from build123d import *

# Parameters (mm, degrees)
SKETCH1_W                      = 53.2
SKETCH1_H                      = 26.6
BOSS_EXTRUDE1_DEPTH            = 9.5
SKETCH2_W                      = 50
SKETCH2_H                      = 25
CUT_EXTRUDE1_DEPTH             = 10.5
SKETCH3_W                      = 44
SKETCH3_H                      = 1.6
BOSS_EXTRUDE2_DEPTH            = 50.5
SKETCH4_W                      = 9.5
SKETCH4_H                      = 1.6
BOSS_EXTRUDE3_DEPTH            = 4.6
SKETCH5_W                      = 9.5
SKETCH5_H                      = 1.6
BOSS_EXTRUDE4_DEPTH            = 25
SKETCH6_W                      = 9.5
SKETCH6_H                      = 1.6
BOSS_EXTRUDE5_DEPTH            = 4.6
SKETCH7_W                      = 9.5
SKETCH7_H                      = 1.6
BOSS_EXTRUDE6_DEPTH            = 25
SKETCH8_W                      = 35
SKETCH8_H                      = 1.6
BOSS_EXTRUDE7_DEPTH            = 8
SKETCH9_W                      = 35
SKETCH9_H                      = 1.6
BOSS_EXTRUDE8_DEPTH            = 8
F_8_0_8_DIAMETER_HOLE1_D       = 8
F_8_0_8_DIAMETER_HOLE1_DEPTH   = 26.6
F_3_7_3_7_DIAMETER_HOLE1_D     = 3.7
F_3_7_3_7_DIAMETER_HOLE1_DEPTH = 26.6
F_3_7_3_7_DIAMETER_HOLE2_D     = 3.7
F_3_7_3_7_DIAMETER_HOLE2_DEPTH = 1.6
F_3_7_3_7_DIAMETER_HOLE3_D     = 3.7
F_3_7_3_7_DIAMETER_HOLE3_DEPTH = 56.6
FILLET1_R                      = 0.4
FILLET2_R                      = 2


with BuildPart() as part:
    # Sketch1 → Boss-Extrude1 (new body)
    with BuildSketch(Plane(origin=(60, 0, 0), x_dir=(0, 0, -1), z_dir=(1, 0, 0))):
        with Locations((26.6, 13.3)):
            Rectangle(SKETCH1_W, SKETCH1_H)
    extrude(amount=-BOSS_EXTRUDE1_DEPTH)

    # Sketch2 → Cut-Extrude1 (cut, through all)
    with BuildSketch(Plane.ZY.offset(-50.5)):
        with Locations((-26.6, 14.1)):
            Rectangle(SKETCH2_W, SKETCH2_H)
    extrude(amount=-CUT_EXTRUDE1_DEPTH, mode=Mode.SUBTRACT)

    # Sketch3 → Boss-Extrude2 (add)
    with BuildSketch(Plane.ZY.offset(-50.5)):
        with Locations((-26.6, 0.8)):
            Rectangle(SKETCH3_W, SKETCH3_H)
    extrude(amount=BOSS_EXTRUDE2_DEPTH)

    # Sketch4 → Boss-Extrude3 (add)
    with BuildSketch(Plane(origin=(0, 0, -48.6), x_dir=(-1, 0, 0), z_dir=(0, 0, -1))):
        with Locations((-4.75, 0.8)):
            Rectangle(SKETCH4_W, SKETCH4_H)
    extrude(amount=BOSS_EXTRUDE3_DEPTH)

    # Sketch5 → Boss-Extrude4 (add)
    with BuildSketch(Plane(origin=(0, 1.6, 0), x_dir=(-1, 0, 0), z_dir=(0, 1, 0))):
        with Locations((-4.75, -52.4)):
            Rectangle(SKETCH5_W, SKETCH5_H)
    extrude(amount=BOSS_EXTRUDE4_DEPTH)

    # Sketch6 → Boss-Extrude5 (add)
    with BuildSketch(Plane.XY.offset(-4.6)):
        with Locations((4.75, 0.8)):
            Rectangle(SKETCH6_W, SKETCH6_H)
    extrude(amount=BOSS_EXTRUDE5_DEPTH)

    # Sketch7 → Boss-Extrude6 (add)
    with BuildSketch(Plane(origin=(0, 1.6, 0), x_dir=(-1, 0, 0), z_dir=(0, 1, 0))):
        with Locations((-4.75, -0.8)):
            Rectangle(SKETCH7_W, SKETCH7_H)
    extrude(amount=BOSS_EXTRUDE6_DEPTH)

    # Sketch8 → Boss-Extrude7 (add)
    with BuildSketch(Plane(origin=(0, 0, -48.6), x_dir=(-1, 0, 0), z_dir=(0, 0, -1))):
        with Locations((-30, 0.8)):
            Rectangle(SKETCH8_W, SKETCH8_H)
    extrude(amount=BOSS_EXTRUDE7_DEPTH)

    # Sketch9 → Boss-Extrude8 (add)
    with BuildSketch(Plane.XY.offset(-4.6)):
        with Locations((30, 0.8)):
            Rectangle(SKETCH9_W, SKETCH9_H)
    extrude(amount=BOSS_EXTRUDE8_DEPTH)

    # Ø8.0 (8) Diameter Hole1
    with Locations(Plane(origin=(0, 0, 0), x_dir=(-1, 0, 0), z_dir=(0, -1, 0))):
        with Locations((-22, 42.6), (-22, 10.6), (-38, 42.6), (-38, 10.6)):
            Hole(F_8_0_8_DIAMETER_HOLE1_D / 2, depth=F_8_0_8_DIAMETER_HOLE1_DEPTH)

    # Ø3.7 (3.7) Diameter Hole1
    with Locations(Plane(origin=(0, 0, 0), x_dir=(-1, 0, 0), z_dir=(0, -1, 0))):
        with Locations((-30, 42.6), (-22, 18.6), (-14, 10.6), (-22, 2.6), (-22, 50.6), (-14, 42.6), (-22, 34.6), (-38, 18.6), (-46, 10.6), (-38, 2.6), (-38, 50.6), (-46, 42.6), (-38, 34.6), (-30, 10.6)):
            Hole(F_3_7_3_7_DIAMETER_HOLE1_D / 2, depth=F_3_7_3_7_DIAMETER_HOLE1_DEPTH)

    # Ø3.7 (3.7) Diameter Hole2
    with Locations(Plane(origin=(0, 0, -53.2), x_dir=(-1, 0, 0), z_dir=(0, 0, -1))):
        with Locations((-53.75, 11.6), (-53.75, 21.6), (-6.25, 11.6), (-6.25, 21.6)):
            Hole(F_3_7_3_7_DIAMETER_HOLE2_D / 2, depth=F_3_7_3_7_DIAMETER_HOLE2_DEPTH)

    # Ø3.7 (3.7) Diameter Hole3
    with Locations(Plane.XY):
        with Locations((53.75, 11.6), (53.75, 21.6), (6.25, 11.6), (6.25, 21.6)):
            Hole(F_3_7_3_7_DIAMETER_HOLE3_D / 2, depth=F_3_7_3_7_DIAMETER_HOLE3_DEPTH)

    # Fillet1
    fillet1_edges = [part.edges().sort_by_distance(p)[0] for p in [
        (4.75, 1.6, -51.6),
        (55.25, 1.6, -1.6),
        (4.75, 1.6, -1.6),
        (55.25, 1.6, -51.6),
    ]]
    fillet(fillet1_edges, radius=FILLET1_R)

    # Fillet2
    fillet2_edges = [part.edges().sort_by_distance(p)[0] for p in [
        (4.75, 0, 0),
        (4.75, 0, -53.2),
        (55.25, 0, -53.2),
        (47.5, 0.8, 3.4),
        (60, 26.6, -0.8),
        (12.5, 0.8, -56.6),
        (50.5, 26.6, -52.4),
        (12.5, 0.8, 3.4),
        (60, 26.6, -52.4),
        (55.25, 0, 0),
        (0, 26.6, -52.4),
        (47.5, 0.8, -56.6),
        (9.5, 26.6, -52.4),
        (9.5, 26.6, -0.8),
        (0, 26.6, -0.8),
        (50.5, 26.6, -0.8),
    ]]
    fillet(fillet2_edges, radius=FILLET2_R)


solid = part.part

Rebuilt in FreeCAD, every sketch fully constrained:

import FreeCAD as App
import Part
import Sketcher

V = App.Vector


def edges_at(feature, points):
    """Names of the edges that pass closest to the given points."""
    edges = feature.Shape.Edges
    near = lambda p: min(range(len(edges)), key=lambda i: edges[i].distToShape(Part.Vertex(*p))[0])
    return sorted({f"Edge{near(p) + 1}" for p in points})

doc = App.newDocument("Part")
params = doc.addObject("Spreadsheet::Sheet", "Params")
for row, (alias, value) in enumerate([
    ("sketch1_width", "26.6 mm"),
    ("sketch1_height", "53.2 mm"),
    ("pad1_length", "9.5 mm"),
    ("sketch2_width", "25 mm"),
    ("sketch2_height", "50 mm"),
    ("sketch3_height", "44 mm"),
    ("sketch3_width", "1.6 mm"),
    ("pad2_length", "50.5 mm"),
    ("sketch4_width", "9.5 mm"),
    ("sketch4_height", "1.6 mm"),
    ("pad3_length", "4.6 mm"),
    ("sketch5_width", "9.5 mm"),
    ("sketch5_height", "1.6 mm"),
    ("pad4_length", "25 mm"),
    ("sketch6_width", "9.5 mm"),
    ("sketch6_height", "1.6 mm"),
    ("pad5_length", "4.6 mm"),
    ("sketch7_width", "9.5 mm"),
    ("sketch7_height", "1.6 mm"),
    ("pad6_length", "25 mm"),
    ("sketch8_width", "35 mm"),
    ("sketch8_height", "1.6 mm"),
    ("pad7_length", "8 mm"),
    ("sketch9_width", "35 mm"),
    ("sketch9_height", "1.6 mm"),
    ("pad8_length", "8 mm"),
    ("sketch10_diameter", "8 mm"),
    ("hole_diameter", "8 mm"),
    ("hole_depth", "26.6 mm"),
    ("sketch11_diameter", "3.7 mm"),
    ("hole2_diameter", "3.7 mm"),
    ("hole2_depth", "26.6 mm"),
    ("sketch12_diameter", "3.7 mm"),
    ("hole3_diameter", "3.7 mm"),
    ("hole3_depth", "1.6 mm"),
    ("sketch13_diameter", "3.7 mm"),
    ("hole4_diameter", "3.7 mm"),
    ("hole4_depth", "56.6 mm"),
    ("fillet_radius", "0.4 mm"),
    ("fillet2_radius", "2 mm"),
], start=1):
    params.set(f"A{row}", alias)
    params.set(f"B{row}", "=" + value)
    params.setAlias(f"B{row}", alias)

body = doc.addObject("PartDesign::Body", "Body")

# Sketch on YZ plane
sketch1 = body.newObject("Sketcher::SketchObject", "Sketch")
sketch1.AttachmentSupport = (doc.getObject("YZ_Plane"), [""])
sketch1.MapMode = "FlatFace"
sketch1.AttachmentOffset = App.Placement(V(0, 0, 60), App.Rotation())
sketch1.addGeometry(Part.LineSegment(V(27, 0, 0), V(0, 0, 0)), False)
sketch1.addGeometry(Part.LineSegment(V(0, 0, 0), V(0, -53, 0)), False)
sketch1.addGeometry(Part.LineSegment(V(0, -53, 0), V(27, -53, 0)), False)
sketch1.addGeometry(Part.LineSegment(V(27, -53, 0), V(27, 0, 0)), False)
sketch1.addConstraint(Sketcher.Constraint("Coincident", 0, 2, 1, 1))
sketch1.addConstraint(Sketcher.Constraint("Coincident", 1, 2, 2, 1))
sketch1.addConstraint(Sketcher.Constraint("Coincident", 2, 2, 3, 1))
sketch1.addConstraint(Sketcher.Constraint("Coincident", 3, 2, 0, 1))
sketch1.addConstraint(Sketcher.Constraint("Horizontal", 0))
sketch1.addConstraint(Sketcher.Constraint("Vertical", 1))
sketch1.addConstraint(Sketcher.Constraint("Horizontal", 2))
sketch1.addConstraint(Sketcher.Constraint("Vertical", 3))
sketch1.addConstraint(Sketcher.Constraint("Coincident", 0, 2, -1, 1))
sketch1.addConstraint(Sketcher.Constraint("DistanceX", 0, 2, 0, 1, 26.6))
sketch1.addConstraint(Sketcher.Constraint("DistanceY", 1, 2, 1, 1, 53.2))
sketch1.setExpression("Constraints[9]", "Params.sketch1_width")
sketch1.setExpression("Constraints[10]", "Params.sketch1_height")
pad1 = body.newObject("PartDesign::Pad", "Pad")
pad1.Profile = sketch1
pad1.setExpression("Length", "Params.pad1_length")
pad1.Reversed = True

# Sketch on YZ plane
sketch2 = body.newObject("Sketcher::SketchObject", "Sketch001")
sketch2.AttachmentSupport = (doc.getObject("YZ_Plane"), [""])
sketch2.MapMode = "FlatFace"
sketch2.AttachmentOffset = App.Placement(V(0, 0, 50.5), App.Rotation())
sketch2.addGeometry(Part.LineSegment(V(27, -52, 0), V(2, -52, 0)), False)
sketch2.addGeometry(Part.LineSegment(V(2, -52, 0), V(2, -2, 0)), False)
sketch2.addGeometry(Part.LineSegment(V(2, -2, 0), V(27, -2, 0)), False)
sketch2.addGeometry(Part.LineSegment(V(27, -2, 0), V(27, -52, 0)), False)
sketch2.addConstraint(Sketcher.Constraint("Coincident", 0, 2, 1, 1))
sketch2.addConstraint(Sketcher.Constraint("Coincident", 1, 2, 2, 1))
sketch2.addConstraint(Sketcher.Constraint("Coincident", 2, 2, 3, 1))
sketch2.addConstraint(Sketcher.Constraint("Coincident", 3, 2, 0, 1))
sketch2.addConstraint(Sketcher.Constraint("Horizontal", 0))
sketch2.addConstraint(Sketcher.Constraint("Vertical", 1))
sketch2.addConstraint(Sketcher.Constraint("Horizontal", 2))
sketch2.addConstraint(Sketcher.Constraint("Vertical", 3))
sketch2.addConstraint(Sketcher.Constraint("DistanceX", 0, 2, 0, 1, 25.0))
sketch2.addConstraint(Sketcher.Constraint("DistanceY", 1, 1, 1, 2, 50.0))
sketch2.addConstraint(Sketcher.Constraint("DistanceX", -1, 1, 0, 2, 1.6))
sketch2.addConstraint(Sketcher.Constraint("DistanceY", 0, 2, -1, 1, 51.6))
sketch2.setExpression("Constraints[8]", "Params.sketch2_width")
sketch2.setExpression("Constraints[9]", "Params.sketch2_height")
pocket1 = body.newObject("PartDesign::Pocket", "Pocket")
pocket1.Profile = sketch2
pocket1.Type = "ThroughAll"
pocket1.Reversed = True

# Sketch on YZ plane
sketch3 = body.newObject("Sketcher::SketchObject", "Sketch002")
sketch3.AttachmentSupport = (doc.getObject("YZ_Plane"), [""])
sketch3.MapMode = "FlatFace"
sketch3.AttachmentOffset = App.Placement(V(0, 0, 50.5), App.Rotation())
sketch3.addGeometry(Part.LineSegment(V(1.6, -48.6, 0), V(0, -48.6, 0)), False)
sketch3.addGeometry(Part.LineSegment(V(0, -48.6, 0), V(0, -4.6, 0)), False)
sketch3.addGeometry(Part.LineSegment(V(0, -4.6, 0), V(1.6, -4.6, 0)), False)
sketch3.addGeometry(Part.LineSegment(V(1.6, -4.6, 0), V(1.6, -48.6, 0)), False)
sketch3.addConstraint(Sketcher.Constraint("Coincident", 0, 2, 1, 1))
sketch3.addConstraint(Sketcher.Constraint("Coincident", 1, 2, 2, 1))
sketch3.addConstraint(Sketcher.Constraint("Coincident", 2, 2, 3, 1))
sketch3.addConstraint(Sketcher.Constraint("Coincident", 3, 2, 0, 1))
sketch3.addConstraint(Sketcher.Constraint("Horizontal", 0))
sketch3.addConstraint(Sketcher.Constraint("Vertical", 1))
sketch3.addConstraint(Sketcher.Constraint("Horizontal", 2))
sketch3.addConstraint(Sketcher.Constraint("Vertical", 3))
sketch3.addConstraint(Sketcher.Constraint("PointOnObject", 0, 2, -2))
sketch3.addConstraint(Sketcher.Constraint("DistanceY", 1, 1, 1, 2, 44.0))
sketch3.addConstraint(Sketcher.Constraint("DistanceX", 0, 2, 0, 1, 1.6))
sketch3.addConstraint(Sketcher.Constraint("DistanceY", 0, 2, -1, 1, 48.6))
sketch3.setExpression("Constraints[9]", "Params.sketch3_height")
sketch3.setExpression("Constraints[10]", "Params.sketch3_width")
pad2 = body.newObject("PartDesign::Pad", "Pad001")
pad2.Profile = sketch3
pad2.setExpression("Length", "Params.pad2_length")
pad2.Reversed = True

# Sketch on XY plane
sketch4 = body.newObject("Sketcher::SketchObject", "Sketch003")
sketch4.AttachmentSupport = (doc.getObject("XY_Plane"), [""])
sketch4.MapMode = "FlatFace"
sketch4.AttachmentOffset = App.Placement(V(0, 0, -48.6), App.Rotation())
sketch4.addGeometry(Part.LineSegment(V(9.5, 1.6, 0), V(9.5, 0, 0)), False)
sketch4.addGeometry(Part.LineSegment(V(9.5, 0, 0), V(0, 0, 0)), False)
sketch4.addGeometry(Part.LineSegment(V(0, 0, 0), V(0, 1.6, 0)), False)
sketch4.addGeometry(Part.LineSegment(V(0, 1.6, 0), V(9.5, 1.6, 0)), False)
sketch4.addConstraint(Sketcher.Constraint("Coincident", 0, 2, 1, 1))
sketch4.addConstraint(Sketcher.Constraint("Coincident", 1, 2, 2, 1))
sketch4.addConstraint(Sketcher.Constraint("Coincident", 2, 2, 3, 1))
sketch4.addConstraint(Sketcher.Constraint("Coincident", 3, 2, 0, 1))
sketch4.addConstraint(Sketcher.Constraint("Vertical", 0))
sketch4.addConstraint(Sketcher.Constraint("Horizontal", 1))
sketch4.addConstraint(Sketcher.Constraint("Vertical", 2))
sketch4.addConstraint(Sketcher.Constraint("Horizontal", 3))
sketch4.addConstraint(Sketcher.Constraint("Coincident", 1, 2, -1, 1))
sketch4.addConstraint(Sketcher.Constraint("DistanceX", 1, 2, 1, 1, 9.5))
sketch4.addConstraint(Sketcher.Constraint("DistanceY", 0, 2, 0, 1, 1.6))
sketch4.setExpression("Constraints[9]", "Params.sketch4_width")
sketch4.setExpression("Constraints[10]", "Params.sketch4_height")
pad3 = body.newObject("PartDesign::Pad", "Pad002")
pad3.Profile = sketch4
pad3.setExpression("Length", "Params.pad3_length")
pad3.Reversed = True

# Sketch on XZ plane
sketch5 = body.newObject("Sketcher::SketchObject", "Sketch004")
sketch5.AttachmentSupport = (doc.getObject("XZ_Plane"), [""])
sketch5.MapMode = "FlatFace"
sketch5.AttachmentOffset = App.Placement(V(0, 0, -1.6), App.Rotation())
sketch5.addGeometry(Part.LineSegment(V(9.5, -51.6, 0), V(9.5, -53.2, 0)), False)
sketch5.addGeometry(Part.LineSegment(V(9.5, -53.2, 0), V(0, -53.2, 0)), False)
sketch5.addGeometry(Part.LineSegment(V(0, -53.2, 0), V(0, -51.6, 0)), False)
sketch5.addGeometry(Part.LineSegment(V(0, -51.6, 0), V(9.5, -51.6, 0)), False)
sketch5.addConstraint(Sketcher.Constraint("Coincident", 0, 2, 1, 1))
sketch5.addConstraint(Sketcher.Constraint("Coincident", 1, 2, 2, 1))
sketch5.addConstraint(Sketcher.Constraint("Coincident", 2, 2, 3, 1))
sketch5.addConstraint(Sketcher.Constraint("Coincident", 3, 2, 0, 1))
sketch5.addConstraint(Sketcher.Constraint("Vertical", 0))
sketch5.addConstraint(Sketcher.Constraint("Horizontal", 1))
sketch5.addConstraint(Sketcher.Constraint("Vertical", 2))
sketch5.addConstraint(Sketcher.Constraint("Horizontal", 3))
sketch5.addConstraint(Sketcher.Constraint("PointOnObject", 1, 2, -2))
sketch5.addConstraint(Sketcher.Constraint("DistanceX", 1, 2, 1, 1, 9.5))
sketch5.addConstraint(Sketcher.Constraint("DistanceY", 0, 2, 0, 1, 1.6))
sketch5.addConstraint(Sketcher.Constraint("DistanceY", 0, 2, -1, 1, 53.2))
sketch5.setExpression("Constraints[9]", "Params.sketch5_width")
sketch5.setExpression("Constraints[10]", "Params.sketch5_height")
pad4 = body.newObject("PartDesign::Pad", "Pad003")
pad4.Profile = sketch5
pad4.setExpression("Length", "Params.pad4_length")
pad4.Reversed = True

# Sketch on XY plane
sketch6 = body.newObject("Sketcher::SketchObject", "Sketch005")
sketch6.AttachmentSupport = (doc.getObject("XY_Plane"), [""])
sketch6.MapMode = "FlatFace"
sketch6.AttachmentOffset = App.Placement(V(0, 0, -4.6), App.Rotation())
sketch6.addGeometry(Part.LineSegment(V(0, 1.6, 0), V(0, 0, 0)), False)
sketch6.addGeometry(Part.LineSegment(V(0, 0, 0), V(9.5, 0, 0)), False)
sketch6.addGeometry(Part.LineSegment(V(9.5, 0, 0), V(9.5, 1.6, 0)), False)
sketch6.addGeometry(Part.LineSegment(V(9.5, 1.6, 0), V(0, 1.6, 0)), False)
sketch6.addConstraint(Sketcher.Constraint("Coincident", 0, 2, 1, 1))
sketch6.addConstraint(Sketcher.Constraint("Coincident", 1, 2, 2, 1))
sketch6.addConstraint(Sketcher.Constraint("Coincident", 2, 2, 3, 1))
sketch6.addConstraint(Sketcher.Constraint("Coincident", 3, 2, 0, 1))
sketch6.addConstraint(Sketcher.Constraint("Vertical", 0))
sketch6.addConstraint(Sketcher.Constraint("Horizontal", 1))
sketch6.addConstraint(Sketcher.Constraint("Vertical", 2))
sketch6.addConstraint(Sketcher.Constraint("Horizontal", 3))
sketch6.addConstraint(Sketcher.Constraint("Coincident", 0, 2, -1, 1))
sketch6.addConstraint(Sketcher.Constraint("DistanceX", 1, 1, 1, 2, 9.5))
sketch6.addConstraint(Sketcher.Constraint("DistanceY", 0, 2, 0, 1, 1.6))
sketch6.setExpression("Constraints[9]", "Params.sketch6_width")
sketch6.setExpression("Constraints[10]", "Params.sketch6_height")
pad5 = body.newObject("PartDesign::Pad", "Pad004")
pad5.Profile = sketch6
pad5.setExpression("Length", "Params.pad5_length")

# Sketch on XZ plane
sketch7 = body.newObject("Sketcher::SketchObject", "Sketch006")
sketch7.AttachmentSupport = (doc.getObject("XZ_Plane"), [""])
sketch7.MapMode = "FlatFace"
sketch7.AttachmentOffset = App.Placement(V(0, 0, -1.6), App.Rotation())
sketch7.addGeometry(Part.LineSegment(V(9.5, 0, 0), V(9.5, -1.6, 0)), False)
sketch7.addGeometry(Part.LineSegment(V(9.5, -1.6, 0), V(0, -1.6, 0)), False)
sketch7.addGeometry(Part.LineSegment(V(0, -1.6, 0), V(0, 0, 0)), False)
sketch7.addGeometry(Part.LineSegment(V(0, 0, 0), V(9.5, 0, 0)), False)
sketch7.addConstraint(Sketcher.Constraint("Coincident", 0, 2, 1, 1))
sketch7.addConstraint(Sketcher.Constraint("Coincident", 1, 2, 2, 1))
sketch7.addConstraint(Sketcher.Constraint("Coincident", 2, 2, 3, 1))
sketch7.addConstraint(Sketcher.Constraint("Coincident", 3, 2, 0, 1))
sketch7.addConstraint(Sketcher.Constraint("Vertical", 0))
sketch7.addConstraint(Sketcher.Constraint("Horizontal", 1))
sketch7.addConstraint(Sketcher.Constraint("Vertical", 2))
sketch7.addConstraint(Sketcher.Constraint("Horizontal", 3))
sketch7.addConstraint(Sketcher.Constraint("Coincident", 2, 2, -1, 1))
sketch7.addConstraint(Sketcher.Constraint("DistanceX", 1, 2, 1, 1, 9.5))
sketch7.addConstraint(Sketcher.Constraint("DistanceY", 0, 2, 0, 1, 1.6))
sketch7.setExpression("Constraints[9]", "Params.sketch7_width")
sketch7.setExpression("Constraints[10]", "Params.sketch7_height")
pad6 = body.newObject("PartDesign::Pad", "Pad005")
pad6.Profile = sketch7
pad6.setExpression("Length", "Params.pad6_length")
pad6.Reversed = True

# Sketch on XY plane
sketch8 = body.newObject("Sketcher::SketchObject", "Sketch007")
sketch8.AttachmentSupport = (doc.getObject("XY_Plane"), [""])
sketch8.MapMode = "FlatFace"
sketch8.AttachmentOffset = App.Placement(V(0, 0, -48.6), App.Rotation())
sketch8.addGeometry(Part.LineSegment(V(47.5, 1.6, 0), V(47.5, 0, 0)), False)
sketch8.addGeometry(Part.LineSegment(V(47.5, 0, 0), V(12.5, 0, 0)), False)
sketch8.addGeometry(Part.LineSegment(V(12.5, 0, 0), V(12.5, 1.6, 0)), False)
sketch8.addGeometry(Part.LineSegment(V(12.5, 1.6, 0), V(47.5, 1.6, 0)), False)
sketch8.addConstraint(Sketcher.Constraint("Coincident", 0, 2, 1, 1))
sketch8.addConstraint(Sketcher.Constraint("Coincident", 1, 2, 2, 1))
sketch8.addConstraint(Sketcher.Constraint("Coincident", 2, 2, 3, 1))
sketch8.addConstraint(Sketcher.Constraint("Coincident", 3, 2, 0, 1))
sketch8.addConstraint(Sketcher.Constraint("Vertical", 0))
sketch8.addConstraint(Sketcher.Constraint("Horizontal", 1))
sketch8.addConstraint(Sketcher.Constraint("Vertical", 2))
sketch8.addConstraint(Sketcher.Constraint("Horizontal", 3))
sketch8.addConstraint(Sketcher.Constraint("PointOnObject", 0, 2, -1))
sketch8.addConstraint(Sketcher.Constraint("DistanceX", 1, 2, 1, 1, 35.0))
sketch8.addConstraint(Sketcher.Constraint("DistanceY", 0, 2, 0, 1, 1.6))
sketch8.addConstraint(Sketcher.Constraint("DistanceX", -1, 1, 0, 2, 47.5))
sketch8.setExpression("Constraints[9]", "Params.sketch8_width")
sketch8.setExpression("Constraints[10]", "Params.sketch8_height")
pad7 = body.newObject("PartDesign::Pad", "Pad006")
pad7.Profile = sketch8
pad7.setExpression("Length", "Params.pad7_length")
pad7.Reversed = True

# Sketch on XY plane
sketch9 = body.newObject("Sketcher::SketchObject", "Sketch008")
sketch9.AttachmentSupport = (doc.getObject("XY_Plane"), [""])
sketch9.MapMode = "FlatFace"
sketch9.AttachmentOffset = App.Placement(V(0, 0, -4.6), App.Rotation())
sketch9.addGeometry(Part.LineSegment(V(12.5, 1.6, 0), V(12.5, 0, 0)), False)
sketch9.addGeometry(Part.LineSegment(V(12.5, 0, 0), V(47.5, 0, 0)), False)
sketch9.addGeometry(Part.LineSegment(V(47.5, 0, 0), V(47.5, 1.6, 0)), False)
sketch9.addGeometry(Part.LineSegment(V(47.5, 1.6, 0), V(12.5, 1.6, 0)), False)
sketch9.addConstraint(Sketcher.Constraint("Coincident", 0, 2, 1, 1))
sketch9.addConstraint(Sketcher.Constraint("Coincident", 1, 2, 2, 1))
sketch9.addConstraint(Sketcher.Constraint("Coincident", 2, 2, 3, 1))
sketch9.addConstraint(Sketcher.Constraint("Coincident", 3, 2, 0, 1))
sketch9.addConstraint(Sketcher.Constraint("Vertical", 0))
sketch9.addConstraint(Sketcher.Constraint("Horizontal", 1))
sketch9.addConstraint(Sketcher.Constraint("Vertical", 2))
sketch9.addConstraint(Sketcher.Constraint("Horizontal", 3))
sketch9.addConstraint(Sketcher.Constraint("PointOnObject", 0, 2, -1))
sketch9.addConstraint(Sketcher.Constraint("DistanceX", 1, 1, 1, 2, 35.0))
sketch9.addConstraint(Sketcher.Constraint("DistanceY", 0, 2, 0, 1, 1.6))
sketch9.addConstraint(Sketcher.Constraint("DistanceX", -1, 1, 0, 2, 12.5))
sketch9.setExpression("Constraints[9]", "Params.sketch9_width")
sketch9.setExpression("Constraints[10]", "Params.sketch9_height")
pad8 = body.newObject("PartDesign::Pad", "Pad007")
pad8.Profile = sketch9
pad8.setExpression("Length", "Params.pad8_length")

# Sketch on XZ plane
sketch10 = body.newObject("Sketcher::SketchObject", "Sketch009")
sketch10.AttachmentSupport = (doc.getObject("XZ_Plane"), [""])
sketch10.MapMode = "FlatFace"
sketch10.addGeometry(Part.Circle(V(22, -42.6, 0), V(0, 0, 1), 4), False)
sketch10.addGeometry(Part.Circle(V(22, -10.6, 0), V(0, 0, 1), 4), False)
sketch10.addGeometry(Part.Circle(V(38, -42.6, 0), V(0, 0, 1), 4), False)
sketch10.addGeometry(Part.Circle(V(38, -10.6, 0), V(0, 0, 1), 4), False)
sketch10.addConstraint(Sketcher.Constraint("Equal", 0, 1))
sketch10.addConstraint(Sketcher.Constraint("Equal", 1, 2))
sketch10.addConstraint(Sketcher.Constraint("Equal", 2, 3))
sketch10.addConstraint(Sketcher.Constraint("Horizontal", 0, 3, 2, 3))
sketch10.addConstraint(Sketcher.Constraint("Horizontal", 1, 3, 3, 3))
sketch10.addConstraint(Sketcher.Constraint("Vertical", 0, 3, 1, 3))
sketch10.addConstraint(Sketcher.Constraint("Vertical", 2, 3, 3, 3))
sketch10.addConstraint(Sketcher.Constraint("Diameter", 0, 8.0))
sketch10.addConstraint(Sketcher.Constraint("DistanceX", -1, 1, 0, 3, 22.0))
sketch10.addConstraint(Sketcher.Constraint("DistanceX", -1, 1, 2, 3, 38.0))
sketch10.addConstraint(Sketcher.Constraint("DistanceY", 0, 3, 1, 3, 32.0))
sketch10.addConstraint(Sketcher.Constraint("DistanceY", 0, 3, -1, 1, 42.6))
sketch10.setExpression("Constraints[7]", "Params.sketch10_diameter")
doc.recompute()
hole = body.newObject("PartDesign::Hole", "Hole")
hole.Profile = sketch10
hole.ThreadType = "None"
hole.setExpression("Diameter", "Params.hole_diameter")
hole.DepthType = "Dimension"
hole.setExpression("Depth", "Params.hole_depth")
hole.DrillPoint = "Flat"

# Sketch on XZ plane
sketch11 = body.newObject("Sketcher::SketchObject", "Sketch010")
sketch11.AttachmentSupport = (doc.getObject("XZ_Plane"), [""])
sketch11.MapMode = "FlatFace"
sketch11.addGeometry(Part.Circle(V(30, -42.6, 0), V(0, 0, 1), 1.9), False)
sketch11.addGeometry(Part.Circle(V(22, -18.6, 0), V(0, 0, 1), 1.9), False)
sketch11.addGeometry(Part.Circle(V(14, -10.6, 0), V(0, 0, 1), 1.9), False)
sketch11.addGeometry(Part.Circle(V(22, -2.6, 0), V(0, 0, 1), 1.9), False)
sketch11.addGeometry(Part.Circle(V(22, -50.6, 0), V(0, 0, 1), 1.9), False)
sketch11.addGeometry(Part.Circle(V(14, -42.6, 0), V(0, 0, 1), 1.9), False)
sketch11.addGeometry(Part.Circle(V(22, -34.6, 0), V(0, 0, 1), 1.9), False)
sketch11.addGeometry(Part.Circle(V(38, -18.6, 0), V(0, 0, 1), 1.9), False)
sketch11.addGeometry(Part.Circle(V(46, -10.6, 0), V(0, 0, 1), 1.9), False)
sketch11.addGeometry(Part.Circle(V(38, -2.6, 0), V(0, 0, 1), 1.9), False)
sketch11.addGeometry(Part.Circle(V(38, -50.6, 0), V(0, 0, 1), 1.9), False)
sketch11.addGeometry(Part.Circle(V(46, -42.6, 0), V(0, 0, 1), 1.9), False)
sketch11.addGeometry(Part.Circle(V(38, -34.6, 0), V(0, 0, 1), 1.9), False)
sketch11.addGeometry(Part.Circle(V(30, -10.6, 0), V(0, 0, 1), 1.9), False)
sketch11.addConstraint(Sketcher.Constraint("Equal", 0, 1))
sketch11.addConstraint(Sketcher.Constraint("Equal", 1, 2))
sketch11.addConstraint(Sketcher.Constraint("Equal", 2, 3))
sketch11.addConstraint(Sketcher.Constraint("Equal", 3, 4))
sketch11.addConstraint(Sketcher.Constraint("Equal", 4, 5))
sketch11.addConstraint(Sketcher.Constraint("Equal", 5, 6))
sketch11.addConstraint(Sketcher.Constraint("Equal", 6, 7))
sketch11.addConstraint(Sketcher.Constraint("Equal", 7, 8))
sketch11.addConstraint(Sketcher.Constraint("Equal", 8, 9))
sketch11.addConstraint(Sketcher.Constraint("Equal", 9, 10))
sketch11.addConstraint(Sketcher.Constraint("Equal", 10, 11))
sketch11.addConstraint(Sketcher.Constraint("Equal", 11, 12))
sketch11.addConstraint(Sketcher.Constraint("Equal", 12, 13))
sketch11.addConstraint(Sketcher.Constraint("Horizontal", 0, 3, 5, 3))
sketch11.addConstraint(Sketcher.Constraint("Horizontal", 1, 3, 7, 3))
sketch11.addConstraint(Sketcher.Constraint("Horizontal", 2, 3, 8, 3))
sketch11.addConstraint(Sketcher.Constraint("Horizontal", 3, 3, 9, 3))
sketch11.addConstraint(Sketcher.Constraint("Horizontal", 4, 3, 10, 3))
sketch11.addConstraint(Sketcher.Constraint("Horizontal", 5, 3, 11, 3))
sketch11.addConstraint(Sketcher.Constraint("Horizontal", 6, 3, 12, 3))
sketch11.addConstraint(Sketcher.Constraint("Horizontal", 8, 3, 13, 3))
sketch11.addConstraint(Sketcher.Constraint("Vertical", 1, 3, 3, 3))
sketch11.addConstraint(Sketcher.Constraint("Vertical", 3, 3, 4, 3))
sketch11.addConstraint(Sketcher.Constraint("Vertical", 2, 3, 5, 3))
sketch11.addConstraint(Sketcher.Constraint("Vertical", 4, 3, 6, 3))
sketch11.addConstraint(Sketcher.Constraint("Vertical", 7, 3, 9, 3))
sketch11.addConstraint(Sketcher.Constraint("Vertical", 9, 3, 10, 3))
sketch11.addConstraint(Sketcher.Constraint("Vertical", 8, 3, 11, 3))
sketch11.addConstraint(Sketcher.Constraint("Vertical", 10, 3, 12, 3))
sketch11.addConstraint(Sketcher.Constraint("Vertical", 0, 3, 13, 3))
sketch11.addConstraint(Sketcher.Constraint("Diameter", 0, 3.7))
sketch11.addConstraint(Sketcher.Constraint("DistanceX", -1, 1, 0, 3, 30.0))
sketch11.addConstraint(Sketcher.Constraint("DistanceX", -1, 1, 1, 3, 22.0))
sketch11.addConstraint(Sketcher.Constraint("DistanceX", -1, 1, 2, 3, 14.0))
sketch11.addConstraint(Sketcher.Constraint("DistanceX", -1, 1, 7, 3, 38.0))
sketch11.addConstraint(Sketcher.Constraint("DistanceX", -1, 1, 8, 3, 46.0))
sketch11.addConstraint(Sketcher.Constraint("DistanceY", 0, 3, 1, 3, 24.0))
sketch11.addConstraint(Sketcher.Constraint("DistanceY", 1, 3, 2, 3, 8.0))
sketch11.addConstraint(Sketcher.Constraint("DistanceY", 2, 3, 3, 3, 8.0))
sketch11.addConstraint(Sketcher.Constraint("DistanceY", 4, 3, 0, 3, 8.0))
sketch11.addConstraint(Sketcher.Constraint("DistanceY", 0, 3, 6, 3, 8.0))
sketch11.addConstraint(Sketcher.Constraint("DistanceY", 0, 3, -1, 1, 42.6))
sketch11.setExpression("Constraints[30]", "Params.sketch11_diameter")
doc.recompute()
hole2 = body.newObject("PartDesign::Hole", "Hole001")
hole2.Profile = sketch11
hole2.ThreadType = "None"
hole2.setExpression("Diameter", "Params.hole2_diameter")
hole2.DepthType = "Dimension"
hole2.setExpression("Depth", "Params.hole2_depth")
hole2.DrillPoint = "Flat"

# Sketch on XY plane
sketch12 = body.newObject("Sketcher::SketchObject", "Sketch011")
sketch12.AttachmentSupport = (doc.getObject("XY_Plane"), [""])
sketch12.MapMode = "FlatFace"
sketch12.AttachmentOffset = App.Placement(V(0, 0, -53.2), App.Rotation())
sketch12.addGeometry(Part.Circle(V(53.8, 11.6, 0), V(0, 0, 1), 1.9), False)
sketch12.addGeometry(Part.Circle(V(53.8, 21.6, 0), V(0, 0, 1), 1.9), False)
sketch12.addGeometry(Part.Circle(V(6.2, 11.6, 0), V(0, 0, 1), 1.9), False)
sketch12.addGeometry(Part.Circle(V(6.2, 21.6, 0), V(0, 0, 1), 1.9), False)
sketch12.addConstraint(Sketcher.Constraint("Equal", 0, 1))
sketch12.addConstraint(Sketcher.Constraint("Equal", 1, 2))
sketch12.addConstraint(Sketcher.Constraint("Equal", 2, 3))
sketch12.addConstraint(Sketcher.Constraint("Horizontal", 0, 3, 2, 3))
sketch12.addConstraint(Sketcher.Constraint("Horizontal", 1, 3, 3, 3))
sketch12.addConstraint(Sketcher.Constraint("Vertical", 0, 3, 1, 3))
sketch12.addConstraint(Sketcher.Constraint("Vertical", 2, 3, 3, 3))
sketch12.addConstraint(Sketcher.Constraint("Diameter", 0, 3.7))
sketch12.addConstraint(Sketcher.Constraint("DistanceY", 0, 3, 1, 3, 10.0))
sketch12.addConstraint(Sketcher.Constraint("DistanceY", -1, 1, 0, 3, 11.6))
sketch12.addConstraint(Sketcher.Constraint("DistanceX", 2, 3, 0, 3, 47.5))
sketch12.addConstraint(Sketcher.Constraint("DistanceX", -1, 1, 0, 3, 53.75))
sketch12.setExpression("Constraints[7]", "Params.sketch12_diameter")
doc.recompute()
hole3 = body.newObject("PartDesign::Hole", "Hole002")
hole3.Profile = sketch12
hole3.ThreadType = "None"
hole3.setExpression("Diameter", "Params.hole3_diameter")
hole3.DepthType = "Dimension"
hole3.setExpression("Depth", "Params.hole3_depth")
hole3.DrillPoint = "Flat"
hole3.Reversed = True

# Sketch on XY plane
sketch13 = body.newObject("Sketcher::SketchObject", "Sketch012")
sketch13.AttachmentSupport = (doc.getObject("XY_Plane"), [""])
sketch13.MapMode = "FlatFace"
sketch13.addGeometry(Part.Circle(V(53.8, 11.6, 0), V(0, 0, 1), 1.9), False)
sketch13.addGeometry(Part.Circle(V(53.8, 21.6, 0), V(0, 0, 1), 1.9), False)
sketch13.addGeometry(Part.Circle(V(6.2, 11.6, 0), V(0, 0, 1), 1.9), False)
sketch13.addGeometry(Part.Circle(V(6.2, 21.6, 0), V(0, 0, 1), 1.9), False)
sketch13.addConstraint(Sketcher.Constraint("Equal", 0, 1))
sketch13.addConstraint(Sketcher.Constraint("Equal", 1, 2))
sketch13.addConstraint(Sketcher.Constraint("Equal", 2, 3))
sketch13.addConstraint(Sketcher.Constraint("Horizontal", 0, 3, 2, 3))
sketch13.addConstraint(Sketcher.Constraint("Horizontal", 1, 3, 3, 3))
sketch13.addConstraint(Sketcher.Constraint("Vertical", 0, 3, 1, 3))
sketch13.addConstraint(Sketcher.Constraint("Vertical", 2, 3, 3, 3))
sketch13.addConstraint(Sketcher.Constraint("Diameter", 0, 3.7))
sketch13.addConstraint(Sketcher.Constraint("DistanceY", 0, 3, 1, 3, 10.0))
sketch13.addConstraint(Sketcher.Constraint("DistanceY", -1, 1, 0, 3, 11.6))
sketch13.addConstraint(Sketcher.Constraint("DistanceX", 2, 3, 0, 3, 47.5))
sketch13.addConstraint(Sketcher.Constraint("DistanceX", -1, 1, 0, 3, 53.75))
sketch13.setExpression("Constraints[7]", "Params.sketch13_diameter")
doc.recompute()
hole4 = body.newObject("PartDesign::Hole", "Hole003")
hole4.Profile = sketch13
hole4.ThreadType = "None"
hole4.setExpression("Diameter", "Params.hole4_diameter")
hole4.DepthType = "Dimension"
hole4.setExpression("Depth", "Params.hole4_depth")
hole4.DrillPoint = "Flat"
doc.recompute()

fillet = body.newObject("PartDesign::Fillet", "Fillet")
fillet.Base = (hole4, edges_at(hole4, [
    (4.75, 1.6, -51.6),
    (55.25, 1.6, -1.6),
    (4.75, 1.6, -1.6),
    (55.25, 1.6, -51.6),
]))
fillet.setExpression("Radius", "Params.fillet_radius")
doc.recompute()

fillet2 = body.newObject("PartDesign::Fillet", "Fillet001")
fillet2.Base = (fillet, edges_at(fillet, [
    (4.75, 0, 0),
    (4.75, 0, -53.2),
    (55.25, 0, -53.2),
    (47.5, 0.8, 3.4),
    (60, 26.6, -0.8),
    (12.5, 0.8, -56.6),
    (50.5, 26.6, -52.4),
    (12.5, 0.8, 3.4),
    (60, 26.6, -52.4),
    (55.25, 0, 0),
    (0, 26.6, -52.4),
    (47.5, 0.8, -56.6),
    (9.5, 26.6, -52.4),
    (9.5, 26.6, -0.8),
    (0, 26.6, -0.8),
    (50.5, 26.6, -0.8),
]))
fillet2.setExpression("Radius", "Params.fillet2_radius")

doc.recompute()
